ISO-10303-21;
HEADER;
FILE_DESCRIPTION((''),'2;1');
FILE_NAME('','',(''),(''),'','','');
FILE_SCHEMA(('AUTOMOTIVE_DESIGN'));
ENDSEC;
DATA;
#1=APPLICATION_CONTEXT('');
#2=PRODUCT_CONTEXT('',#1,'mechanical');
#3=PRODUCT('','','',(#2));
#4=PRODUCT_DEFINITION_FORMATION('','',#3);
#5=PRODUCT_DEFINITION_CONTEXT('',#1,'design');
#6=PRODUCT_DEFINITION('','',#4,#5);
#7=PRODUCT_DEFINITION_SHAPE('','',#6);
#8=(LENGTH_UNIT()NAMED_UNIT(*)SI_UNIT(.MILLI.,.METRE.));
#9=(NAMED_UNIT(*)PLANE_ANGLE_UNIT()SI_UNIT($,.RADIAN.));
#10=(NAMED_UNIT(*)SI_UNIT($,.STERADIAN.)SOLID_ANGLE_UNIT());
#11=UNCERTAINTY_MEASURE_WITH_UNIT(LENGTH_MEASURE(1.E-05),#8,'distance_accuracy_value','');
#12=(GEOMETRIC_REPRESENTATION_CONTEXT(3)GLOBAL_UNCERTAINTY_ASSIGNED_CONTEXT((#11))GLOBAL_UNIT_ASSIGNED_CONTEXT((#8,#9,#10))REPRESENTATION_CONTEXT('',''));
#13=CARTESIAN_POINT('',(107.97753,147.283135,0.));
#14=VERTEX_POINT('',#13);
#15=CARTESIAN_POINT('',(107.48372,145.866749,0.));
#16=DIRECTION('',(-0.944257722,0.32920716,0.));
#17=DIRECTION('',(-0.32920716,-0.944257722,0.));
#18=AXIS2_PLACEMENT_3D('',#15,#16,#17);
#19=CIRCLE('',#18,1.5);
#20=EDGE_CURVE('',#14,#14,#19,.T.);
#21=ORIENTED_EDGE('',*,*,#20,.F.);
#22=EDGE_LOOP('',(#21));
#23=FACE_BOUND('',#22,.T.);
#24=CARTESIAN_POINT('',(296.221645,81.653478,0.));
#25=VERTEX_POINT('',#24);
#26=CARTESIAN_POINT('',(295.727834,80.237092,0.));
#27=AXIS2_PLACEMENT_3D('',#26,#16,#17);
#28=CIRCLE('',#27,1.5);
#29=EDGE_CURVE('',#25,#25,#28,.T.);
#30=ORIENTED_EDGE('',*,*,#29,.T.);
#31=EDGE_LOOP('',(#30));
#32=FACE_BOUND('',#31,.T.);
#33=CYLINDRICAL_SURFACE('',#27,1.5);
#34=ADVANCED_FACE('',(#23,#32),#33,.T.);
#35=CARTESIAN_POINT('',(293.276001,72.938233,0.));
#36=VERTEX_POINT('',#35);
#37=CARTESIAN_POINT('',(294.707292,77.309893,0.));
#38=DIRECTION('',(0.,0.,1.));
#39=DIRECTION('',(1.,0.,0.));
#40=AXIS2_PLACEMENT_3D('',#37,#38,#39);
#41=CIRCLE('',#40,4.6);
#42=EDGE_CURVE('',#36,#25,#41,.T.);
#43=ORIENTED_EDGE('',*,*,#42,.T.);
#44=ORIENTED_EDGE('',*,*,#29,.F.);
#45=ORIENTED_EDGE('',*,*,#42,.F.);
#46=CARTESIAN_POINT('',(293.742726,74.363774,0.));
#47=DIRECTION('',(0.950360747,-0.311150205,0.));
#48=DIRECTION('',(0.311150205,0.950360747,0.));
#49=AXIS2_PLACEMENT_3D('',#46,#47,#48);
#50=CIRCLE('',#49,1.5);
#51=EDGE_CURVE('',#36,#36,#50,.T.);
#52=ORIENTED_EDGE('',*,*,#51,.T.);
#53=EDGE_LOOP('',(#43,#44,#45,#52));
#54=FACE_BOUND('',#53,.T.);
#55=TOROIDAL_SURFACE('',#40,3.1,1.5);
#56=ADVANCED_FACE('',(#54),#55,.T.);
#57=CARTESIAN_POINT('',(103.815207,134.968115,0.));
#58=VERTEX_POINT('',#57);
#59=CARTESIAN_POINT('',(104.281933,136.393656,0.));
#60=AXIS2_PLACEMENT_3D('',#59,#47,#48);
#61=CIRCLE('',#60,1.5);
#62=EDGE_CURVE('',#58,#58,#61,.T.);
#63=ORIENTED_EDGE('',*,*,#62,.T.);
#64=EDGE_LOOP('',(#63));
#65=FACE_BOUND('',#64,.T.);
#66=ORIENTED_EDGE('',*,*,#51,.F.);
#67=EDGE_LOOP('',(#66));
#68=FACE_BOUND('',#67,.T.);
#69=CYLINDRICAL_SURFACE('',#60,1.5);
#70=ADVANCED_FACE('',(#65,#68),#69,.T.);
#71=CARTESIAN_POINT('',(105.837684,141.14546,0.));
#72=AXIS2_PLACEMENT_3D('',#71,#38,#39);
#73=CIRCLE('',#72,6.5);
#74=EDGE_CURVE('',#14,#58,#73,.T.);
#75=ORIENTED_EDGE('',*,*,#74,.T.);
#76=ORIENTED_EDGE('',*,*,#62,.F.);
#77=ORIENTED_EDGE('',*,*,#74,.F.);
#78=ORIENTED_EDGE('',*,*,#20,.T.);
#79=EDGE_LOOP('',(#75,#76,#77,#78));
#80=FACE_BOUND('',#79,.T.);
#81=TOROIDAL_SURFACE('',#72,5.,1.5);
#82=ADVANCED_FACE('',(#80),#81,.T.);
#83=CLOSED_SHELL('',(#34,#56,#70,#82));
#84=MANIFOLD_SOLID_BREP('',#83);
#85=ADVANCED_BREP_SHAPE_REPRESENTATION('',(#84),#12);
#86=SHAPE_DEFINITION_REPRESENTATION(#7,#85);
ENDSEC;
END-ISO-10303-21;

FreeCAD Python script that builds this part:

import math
import FreeCAD as App
import Part
import Sketcher
Q = App.Units.Quantity

doc = App.newDocument("Part")
body = doc.addObject("PartDesign::Body", "Body")

sketch1 = doc.addObject("Sketcher::SketchObject", "Sketch")
body.addObject(sketch1)
sketch1.Placement = App.Placement(App.Vector(293.742726, 74.363774, 0), App.Rotation(App.Vector(-0.311150205, -0.950360747, 0), App.Vector(0, 0, 1), App.Vector(-0.950360747, 0.311150205, 0), "ZXY"))
sketch1.addGeometry(Part.Circle(App.Vector(0, 0, 0), App.Vector(0, 0, 1), 1.5), False)
sketch1.addConstraint([
    Sketcher.Constraint("Coincident", 0, 3, -1, 1),
    Sketcher.Constraint("Diameter", 0, Q("3 mm")),
])

sketch2 = doc.addObject("Sketcher::SketchObject", "Sketch001")
body.addObject(sketch2)
sketch2.AttachmentSupport = (doc.XY_Plane, [""])
sketch2.MapMode = "FlatFace"
sketch2.addGeometry([
    Part.LineSegment(App.Vector(293.7, 74.4, 0), App.Vector(104.3, 136.4, 0)),
    Part.ArcOfCircle(Part.Circle(App.Vector(105.8, 141.1, 0), App.Vector(0, 0, 1), 5), math.radians(71), math.radians(252)),
    Part.LineSegment(App.Vector(107.5, 145.9, 0), App.Vector(295.7, 80.2, 0)),
    Part.ArcOfCircle(Part.Circle(App.Vector(294.7, 77.3, 0), App.Vector(0, 0, 1), 3.1), math.radians(-108), math.radians(71)),
], False)
sketch2.addConstraint([
    Sketcher.Constraint("Tangent", 0, 2, 1, 2),
    Sketcher.Constraint("Tangent", 1, 1, 2, 1),
    Sketcher.Constraint("Tangent", 2, 2, 3, 2),
    Sketcher.Constraint("Tangent", 3, 1, 0, 1),
    Sketcher.Constraint("Radius", 1, Q("5 mm")),
    Sketcher.Constraint("Radius", 3, Q("3.1 mm")),
    Sketcher.Constraint("DistanceY", 3, 3, 2, 2, Q("2.927199 mm")),
    Sketcher.Constraint("DistanceX", 0, 2, 2, 2, Q("191.445901 mm")),
    Sketcher.Constraint("DistanceY", -1, 1, 1, 3, Q("141.14546 mm")),
    Sketcher.Constraint("DistanceX", -1, 1, 3, 3, Q("294.707292 mm")),
])
doc.recompute()

additivepipe = doc.addObject("PartDesign::AdditivePipe", "AdditivePipe")
body.addObject(additivepipe)
additivepipe.Profile = sketch1
additivepipe.Spine = (sketch2, ["Edge1", "Edge2", "Edge3", "Edge4"])

doc.recompute()
